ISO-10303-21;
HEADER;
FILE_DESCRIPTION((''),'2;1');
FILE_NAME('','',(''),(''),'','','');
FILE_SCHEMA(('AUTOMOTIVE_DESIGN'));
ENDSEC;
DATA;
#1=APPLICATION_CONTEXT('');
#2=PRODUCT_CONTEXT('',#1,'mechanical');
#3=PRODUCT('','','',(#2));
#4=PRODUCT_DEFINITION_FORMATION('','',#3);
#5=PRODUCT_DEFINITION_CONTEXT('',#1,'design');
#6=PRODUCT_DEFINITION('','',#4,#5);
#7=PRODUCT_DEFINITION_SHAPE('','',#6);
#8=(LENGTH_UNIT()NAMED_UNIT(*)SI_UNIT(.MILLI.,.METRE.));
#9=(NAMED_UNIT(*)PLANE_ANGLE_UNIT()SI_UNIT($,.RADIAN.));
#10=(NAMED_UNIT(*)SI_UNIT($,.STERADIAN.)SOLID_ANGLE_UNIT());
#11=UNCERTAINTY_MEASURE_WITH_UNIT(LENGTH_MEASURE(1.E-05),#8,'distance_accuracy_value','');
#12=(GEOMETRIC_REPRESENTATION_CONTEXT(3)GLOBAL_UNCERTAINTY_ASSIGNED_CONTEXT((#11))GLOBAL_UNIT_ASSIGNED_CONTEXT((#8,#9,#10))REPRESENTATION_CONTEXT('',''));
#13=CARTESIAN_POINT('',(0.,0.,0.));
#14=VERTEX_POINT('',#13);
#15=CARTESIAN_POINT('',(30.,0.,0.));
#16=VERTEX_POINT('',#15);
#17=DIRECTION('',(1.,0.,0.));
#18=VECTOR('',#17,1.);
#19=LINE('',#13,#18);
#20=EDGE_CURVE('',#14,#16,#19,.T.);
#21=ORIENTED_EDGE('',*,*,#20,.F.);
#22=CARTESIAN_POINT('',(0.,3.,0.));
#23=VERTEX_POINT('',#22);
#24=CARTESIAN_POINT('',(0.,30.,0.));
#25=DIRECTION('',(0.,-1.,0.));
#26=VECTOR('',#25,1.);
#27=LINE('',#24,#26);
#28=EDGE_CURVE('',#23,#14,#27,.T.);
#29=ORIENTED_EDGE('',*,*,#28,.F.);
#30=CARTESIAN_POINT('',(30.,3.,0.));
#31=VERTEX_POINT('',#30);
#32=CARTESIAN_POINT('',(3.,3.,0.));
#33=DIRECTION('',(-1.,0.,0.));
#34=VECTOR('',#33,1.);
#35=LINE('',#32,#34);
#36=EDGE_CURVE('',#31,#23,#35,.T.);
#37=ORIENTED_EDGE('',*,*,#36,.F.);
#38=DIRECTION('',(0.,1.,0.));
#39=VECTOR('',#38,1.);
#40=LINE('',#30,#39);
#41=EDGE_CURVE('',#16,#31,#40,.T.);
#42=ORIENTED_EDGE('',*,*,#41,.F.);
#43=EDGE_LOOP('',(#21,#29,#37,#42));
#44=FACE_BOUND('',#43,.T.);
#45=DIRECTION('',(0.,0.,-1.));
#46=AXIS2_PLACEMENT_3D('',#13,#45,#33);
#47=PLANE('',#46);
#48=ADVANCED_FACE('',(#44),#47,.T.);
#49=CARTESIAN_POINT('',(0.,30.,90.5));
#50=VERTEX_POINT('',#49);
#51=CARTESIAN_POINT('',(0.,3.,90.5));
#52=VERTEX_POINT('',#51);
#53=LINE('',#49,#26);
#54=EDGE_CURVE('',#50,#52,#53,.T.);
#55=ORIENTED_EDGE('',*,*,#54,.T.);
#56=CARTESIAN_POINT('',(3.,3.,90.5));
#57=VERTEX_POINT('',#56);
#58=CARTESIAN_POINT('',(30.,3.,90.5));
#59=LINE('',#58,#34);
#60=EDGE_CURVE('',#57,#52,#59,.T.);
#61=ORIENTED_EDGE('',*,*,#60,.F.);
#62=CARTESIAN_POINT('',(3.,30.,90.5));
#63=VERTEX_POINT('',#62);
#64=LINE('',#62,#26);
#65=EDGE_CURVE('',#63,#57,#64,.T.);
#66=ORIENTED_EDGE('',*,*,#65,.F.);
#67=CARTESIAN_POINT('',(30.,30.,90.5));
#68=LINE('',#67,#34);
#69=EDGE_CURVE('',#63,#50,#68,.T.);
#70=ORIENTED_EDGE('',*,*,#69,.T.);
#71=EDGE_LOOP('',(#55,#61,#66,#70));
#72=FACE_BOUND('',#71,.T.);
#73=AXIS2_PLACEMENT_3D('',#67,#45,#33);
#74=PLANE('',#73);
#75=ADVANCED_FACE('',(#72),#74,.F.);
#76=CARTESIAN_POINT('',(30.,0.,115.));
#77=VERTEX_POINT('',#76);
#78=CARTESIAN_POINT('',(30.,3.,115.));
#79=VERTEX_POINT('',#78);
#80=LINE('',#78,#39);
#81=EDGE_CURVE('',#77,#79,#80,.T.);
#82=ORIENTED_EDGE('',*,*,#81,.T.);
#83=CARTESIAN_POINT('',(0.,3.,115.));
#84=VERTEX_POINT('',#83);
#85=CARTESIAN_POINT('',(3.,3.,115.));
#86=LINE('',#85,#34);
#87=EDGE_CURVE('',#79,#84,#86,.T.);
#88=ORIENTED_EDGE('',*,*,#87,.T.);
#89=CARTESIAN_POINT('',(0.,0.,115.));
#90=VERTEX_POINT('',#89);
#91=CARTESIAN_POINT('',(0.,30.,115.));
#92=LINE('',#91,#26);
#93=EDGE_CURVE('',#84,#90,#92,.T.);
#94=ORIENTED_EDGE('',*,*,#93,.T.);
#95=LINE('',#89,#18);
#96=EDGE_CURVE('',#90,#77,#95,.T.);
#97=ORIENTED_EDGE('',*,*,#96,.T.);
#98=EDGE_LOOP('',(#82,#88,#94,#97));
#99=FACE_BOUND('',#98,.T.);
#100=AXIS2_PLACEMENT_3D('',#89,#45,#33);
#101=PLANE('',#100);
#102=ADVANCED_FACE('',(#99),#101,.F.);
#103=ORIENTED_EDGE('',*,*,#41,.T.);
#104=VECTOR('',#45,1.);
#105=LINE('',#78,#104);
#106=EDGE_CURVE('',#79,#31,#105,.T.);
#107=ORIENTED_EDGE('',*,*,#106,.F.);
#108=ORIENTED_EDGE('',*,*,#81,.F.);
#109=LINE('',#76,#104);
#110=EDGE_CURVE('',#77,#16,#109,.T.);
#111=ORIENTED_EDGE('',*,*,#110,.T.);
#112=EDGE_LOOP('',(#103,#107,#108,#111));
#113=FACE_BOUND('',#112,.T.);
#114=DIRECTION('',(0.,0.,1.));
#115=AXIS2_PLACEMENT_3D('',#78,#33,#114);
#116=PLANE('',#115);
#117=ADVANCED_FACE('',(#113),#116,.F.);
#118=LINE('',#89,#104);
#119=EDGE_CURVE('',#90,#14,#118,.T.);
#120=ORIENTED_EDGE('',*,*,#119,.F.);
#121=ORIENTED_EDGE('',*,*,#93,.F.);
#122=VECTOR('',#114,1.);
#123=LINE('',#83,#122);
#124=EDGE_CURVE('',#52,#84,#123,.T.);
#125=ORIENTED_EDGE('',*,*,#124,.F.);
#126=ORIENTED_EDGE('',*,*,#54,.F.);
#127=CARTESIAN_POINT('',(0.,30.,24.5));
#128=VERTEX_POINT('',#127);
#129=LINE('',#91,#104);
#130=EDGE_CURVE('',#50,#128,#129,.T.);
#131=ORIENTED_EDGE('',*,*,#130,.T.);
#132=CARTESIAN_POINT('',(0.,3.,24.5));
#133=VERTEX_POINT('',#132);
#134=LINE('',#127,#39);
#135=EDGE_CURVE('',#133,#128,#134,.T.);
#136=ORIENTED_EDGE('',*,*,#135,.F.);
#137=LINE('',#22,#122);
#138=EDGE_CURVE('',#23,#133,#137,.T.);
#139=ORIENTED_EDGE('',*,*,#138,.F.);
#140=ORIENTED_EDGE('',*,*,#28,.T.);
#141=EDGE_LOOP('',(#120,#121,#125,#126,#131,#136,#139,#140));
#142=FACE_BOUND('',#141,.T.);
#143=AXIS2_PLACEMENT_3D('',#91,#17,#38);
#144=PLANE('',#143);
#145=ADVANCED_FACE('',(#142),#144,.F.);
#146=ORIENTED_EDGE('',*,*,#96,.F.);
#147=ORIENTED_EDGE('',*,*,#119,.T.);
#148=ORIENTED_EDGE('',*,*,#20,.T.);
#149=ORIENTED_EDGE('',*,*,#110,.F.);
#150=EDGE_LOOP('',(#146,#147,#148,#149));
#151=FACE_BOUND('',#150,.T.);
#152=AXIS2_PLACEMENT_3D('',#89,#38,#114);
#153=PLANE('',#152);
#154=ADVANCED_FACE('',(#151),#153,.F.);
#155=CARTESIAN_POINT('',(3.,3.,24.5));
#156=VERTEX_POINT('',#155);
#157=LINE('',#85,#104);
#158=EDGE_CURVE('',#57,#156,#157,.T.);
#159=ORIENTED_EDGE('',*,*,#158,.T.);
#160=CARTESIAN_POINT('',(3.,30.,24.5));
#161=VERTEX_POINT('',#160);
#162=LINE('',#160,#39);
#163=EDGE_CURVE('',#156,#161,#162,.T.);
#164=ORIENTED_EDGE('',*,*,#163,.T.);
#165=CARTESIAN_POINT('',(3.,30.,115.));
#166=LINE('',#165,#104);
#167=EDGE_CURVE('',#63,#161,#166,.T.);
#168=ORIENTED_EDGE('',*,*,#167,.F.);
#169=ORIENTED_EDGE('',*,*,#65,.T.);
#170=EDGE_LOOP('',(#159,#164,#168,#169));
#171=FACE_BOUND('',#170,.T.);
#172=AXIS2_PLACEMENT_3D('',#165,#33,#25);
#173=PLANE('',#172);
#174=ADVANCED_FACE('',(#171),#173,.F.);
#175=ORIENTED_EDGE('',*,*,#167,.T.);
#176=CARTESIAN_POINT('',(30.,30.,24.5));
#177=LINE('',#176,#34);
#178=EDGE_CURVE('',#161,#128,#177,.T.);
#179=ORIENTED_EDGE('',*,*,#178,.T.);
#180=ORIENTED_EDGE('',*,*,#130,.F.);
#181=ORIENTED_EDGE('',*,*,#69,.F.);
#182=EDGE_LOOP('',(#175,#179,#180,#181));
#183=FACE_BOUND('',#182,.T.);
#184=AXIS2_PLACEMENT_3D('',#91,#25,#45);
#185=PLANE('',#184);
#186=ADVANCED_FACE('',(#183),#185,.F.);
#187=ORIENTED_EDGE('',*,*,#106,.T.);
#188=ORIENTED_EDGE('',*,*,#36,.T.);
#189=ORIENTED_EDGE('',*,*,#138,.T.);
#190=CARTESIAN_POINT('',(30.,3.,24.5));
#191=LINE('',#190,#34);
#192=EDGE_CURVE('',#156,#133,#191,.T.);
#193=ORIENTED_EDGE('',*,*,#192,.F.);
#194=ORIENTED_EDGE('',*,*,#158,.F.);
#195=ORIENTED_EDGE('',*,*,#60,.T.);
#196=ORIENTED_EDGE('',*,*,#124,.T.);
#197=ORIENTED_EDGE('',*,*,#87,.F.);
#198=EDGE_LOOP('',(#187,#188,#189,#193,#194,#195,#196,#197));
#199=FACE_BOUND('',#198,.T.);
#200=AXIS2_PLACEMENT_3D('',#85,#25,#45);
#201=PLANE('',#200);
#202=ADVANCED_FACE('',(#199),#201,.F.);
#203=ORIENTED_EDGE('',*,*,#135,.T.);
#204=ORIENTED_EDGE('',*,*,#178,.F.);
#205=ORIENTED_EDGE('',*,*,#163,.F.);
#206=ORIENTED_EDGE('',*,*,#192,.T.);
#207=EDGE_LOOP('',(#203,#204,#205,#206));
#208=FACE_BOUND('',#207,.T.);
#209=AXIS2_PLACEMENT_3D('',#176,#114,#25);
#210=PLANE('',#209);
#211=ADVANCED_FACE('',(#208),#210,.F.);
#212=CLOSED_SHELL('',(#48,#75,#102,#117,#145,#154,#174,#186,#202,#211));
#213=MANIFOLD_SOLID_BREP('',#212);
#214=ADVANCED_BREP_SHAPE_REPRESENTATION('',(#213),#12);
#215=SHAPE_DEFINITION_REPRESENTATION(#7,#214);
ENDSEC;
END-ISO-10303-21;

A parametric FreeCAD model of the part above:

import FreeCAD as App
import Part
import Sketcher

doc = App.newDocument("Part")
body = doc.addObject("PartDesign::Body", "Body")

sketch1 = body.newObject("Sketcher::SketchObject", "Sketch")
sketch1.AttachmentSupport = (doc.getObject("XY_Plane"), [""])
sketch1.MapMode = "FlatFace"
sketch1.addGeometry(Part.LineSegment(App.Vector(0, 30, 0), App.Vector(0, 0, 0)), False)
sketch1.addGeometry(Part.LineSegment(App.Vector(0, 0, 0), App.Vector(30, 0, 0)), False)
sketch1.addGeometry(Part.LineSegment(App.Vector(30, 0, 0), App.Vector(30, 3, 0)), False)
sketch1.addGeometry(Part.LineSegment(App.Vector(30, 3, 0), App.Vector(3, 3, 0)), False)
sketch1.addGeometry(Part.LineSegment(App.Vector(3, 3, 0), App.Vector(3, 30, 0)), False)
sketch1.addGeometry(Part.LineSegment(App.Vector(3, 30, 0), App.Vector(0, 30, 0)), False)
sketch1.addConstraint(Sketcher.Constraint("Coincident", 0, 2, 1, 1))
sketch1.addConstraint(Sketcher.Constraint("Coincident", 1, 2, 2, 1))
sketch1.addConstraint(Sketcher.Constraint("Coincident", 2, 2, 3, 1))
sketch1.addConstraint(Sketcher.Constraint("Coincident", 3, 2, 4, 1))
sketch1.addConstraint(Sketcher.Constraint("Coincident", 4, 2, 5, 1))
sketch1.addConstraint(Sketcher.Constraint("Coincident", 5, 2, 0, 1))
sketch1.addConstraint(Sketcher.Constraint("Vertical", 0))
sketch1.addConstraint(Sketcher.Constraint("Horizontal", 1))
sketch1.addConstraint(Sketcher.Constraint("Vertical", 2))
sketch1.addConstraint(Sketcher.Constraint("Horizontal", 3))
sketch1.addConstraint(Sketcher.Constraint("Vertical", 4))
sketch1.addConstraint(Sketcher.Constraint("Horizontal", 5))
sketch1.addConstraint(Sketcher.Constraint("Coincident", 0, 2, -1, 1))
sketch1.addConstraint(Sketcher.Constraint("Equal", 1, 0))
sketch1.addConstraint(Sketcher.Constraint("Equal", 5, 2))
sketch1.addConstraint(Sketcher.Constraint("DistanceX", 1, 1, 1, 2, 30.0))
sketch1.addConstraint(Sketcher.Constraint("DistanceX", 3, 2, 3, 1, 27.0))
pad1 = body.newObject("PartDesign::Pad", "Pad")
pad1.Profile = sketch1
pad1.Length = 115

sketch2 = body.newObject("Sketcher::SketchObject", "Sketch001")
sketch2.AttachmentSupport = (doc.getObject("YZ_Plane"), [""])
sketch2.MapMode = "FlatFace"
sketch2.addGeometry(Part.LineSegment(App.Vector(30, 0, 0), App.Vector(3, 0, 0)), False)
sketch2.addGeometry(Part.LineSegment(App.Vector(3, 0, 0), App.Vector(3, 24.5, 0)), False)
sketch2.addGeometry(Part.LineSegment(App.Vector(3, 24.5, 0), App.Vector(30, 24.5, 0)), False)
sketch2.addGeometry(Part.LineSegment(App.Vector(30, 24.5, 0), App.Vector(30, 0, 0)), False)
sketch2.addGeometry(Part.LineSegment(App.Vector(30, 90.5, 0), App.Vector(3, 90.5, 0)), False)
sketch2.addGeometry(Part.LineSegment(App.Vector(3, 90.5, 0), App.Vector(3, 115, 0)), False)
sketch2.addGeometry(Part.LineSegment(App.Vector(3, 115, 0), App.Vector(30, 115, 0)), False)
sketch2.addGeometry(Part.LineSegment(App.Vector(30, 115, 0), App.Vector(30, 90.5, 0)), False)
sketch2.addConstraint(Sketcher.Constraint("Coincident", 0, 2, 1, 1))
sketch2.addConstraint(Sketcher.Constraint("Coincident", 1, 2, 2, 1))
sketch2.addConstraint(Sketcher.Constraint("Coincident", 2, 2, 3, 1))
sketch2.addConstraint(Sketcher.Constraint("Coincident", 3, 2, 0, 1))
sketch2.addConstraint(Sketcher.Constraint("Coincident", 4, 2, 5, 1))
sketch2.addConstraint(Sketcher.Constraint("Coincident", 5, 2, 6, 1))
sketch2.addConstraint(Sketcher.Constraint("Coincident", 6, 2, 7, 1))
sketch2.addConstraint(Sketcher.Constraint("Coincident", 7, 2, 4, 1))
sketch2.addConstraint(Sketcher.Constraint("Horizontal", 0))
sketch2.addConstraint(Sketcher.Constraint("Vertical", 1))
sketch2.addConstraint(Sketcher.Constraint("Horizontal", 2))
sketch2.addConstraint(Sketcher.Constraint("Vertical", 3))
sketch2.addConstraint(Sketcher.Constraint("Horizontal", 4))
sketch2.addConstraint(Sketcher.Constraint("Vertical", 5))
sketch2.addConstraint(Sketcher.Constraint("Horizontal", 6))
sketch2.addConstraint(Sketcher.Constraint("Vertical", 7))
sketch2.addConstraint(Sketcher.Constraint("PointOnObject", 0, 2, -1))
sketch2.addConstraint(Sketcher.Constraint("Vertical", 1, 2, 4, 2))
sketch2.addConstraint(Sketcher.Constraint("Vertical", 3, 2, 6, 2))
sketch2.addConstraint(Sketcher.Constraint("Equal", 3, 5))
sketch2.addConstraint(Sketcher.Constraint("DistanceX", 0, 2, 0, 1, 27.0))
sketch2.addConstraint(Sketcher.Constraint("DistanceY", 1, 1, 1, 2, 24.5))
sketch2.addConstraint(Sketcher.Constraint("DistanceX", -1, 1, 0, 2, 3.0))
sketch2.addConstraint(Sketcher.Constraint("DistanceY", -1, 1, 5, 2, 115.0))
pocket1 = body.newObject("PartDesign::Pocket", "Pocket")
pocket1.Profile = sketch2
pocket1.Type = "ThroughAll"
pocket1.Reversed = True

doc.recompute()
